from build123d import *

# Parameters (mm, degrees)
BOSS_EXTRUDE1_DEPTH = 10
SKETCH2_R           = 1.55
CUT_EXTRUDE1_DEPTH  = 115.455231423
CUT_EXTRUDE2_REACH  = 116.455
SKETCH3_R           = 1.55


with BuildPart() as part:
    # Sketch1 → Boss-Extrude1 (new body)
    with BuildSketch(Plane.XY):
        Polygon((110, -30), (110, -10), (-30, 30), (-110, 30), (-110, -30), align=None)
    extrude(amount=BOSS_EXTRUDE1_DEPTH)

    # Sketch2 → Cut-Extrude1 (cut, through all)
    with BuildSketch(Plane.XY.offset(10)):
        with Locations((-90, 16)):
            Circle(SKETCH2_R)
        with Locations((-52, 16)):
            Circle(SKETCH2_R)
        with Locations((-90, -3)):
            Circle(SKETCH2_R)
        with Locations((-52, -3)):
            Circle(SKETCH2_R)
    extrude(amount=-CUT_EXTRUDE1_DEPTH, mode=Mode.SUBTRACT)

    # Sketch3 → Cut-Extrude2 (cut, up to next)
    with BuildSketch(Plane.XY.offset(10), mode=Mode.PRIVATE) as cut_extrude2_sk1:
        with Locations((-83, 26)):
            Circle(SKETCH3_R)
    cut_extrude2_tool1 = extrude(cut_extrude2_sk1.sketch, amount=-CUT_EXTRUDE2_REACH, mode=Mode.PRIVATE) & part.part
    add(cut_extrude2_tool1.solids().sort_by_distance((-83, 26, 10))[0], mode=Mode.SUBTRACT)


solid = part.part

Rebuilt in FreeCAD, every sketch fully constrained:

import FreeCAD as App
import Part
import Sketcher
from FreeCAD import Vector


def add_polygon(sketch, points):
    """Adds a closed chain of lines whose ends are joined by coincident constraints."""
    first, n = sketch.GeometryCount, len(points)
    for a, b in zip(points, points[1:] + points[:1]):
        sketch.addGeometry(Part.LineSegment(App.Vector(*a, 0), App.Vector(*b, 0)), False)
    for i in range(n):
        sketch.addConstraint(Sketcher.Constraint("Coincident", first + i, 2, first + (i + 1) % n, 1))

doc = App.newDocument("Part")
body = doc.addObject("PartDesign::Body", "Body")

sketch1 = doc.addObject("Sketcher::SketchObject", "Sketch")
body.addObject(sketch1)
sketch1.AttachmentSupport = (doc.XY_Plane, [""])
sketch1.MapMode = "FlatFace"
add_polygon(sketch1, [(110, -30), (110, -10), (-30, 30), (-110, 30), (-110, -30)])
sketch1.addConstraint([
    Sketcher.Constraint("Vertical", 0),
    Sketcher.Constraint("Horizontal", 2),
    Sketcher.Constraint("Vertical", 3),
    Sketcher.Constraint("Horizontal", 4),
    Sketcher.Constraint("Symmetric", 2, 2, 4, 2, -1, 1),
    Sketcher.Constraint("DistanceX", 2, 2, 2, 1, 80.0),
    Sketcher.Constraint("DistanceX", 4, 1, 4, 2, 220.0),
    Sketcher.Constraint("DistanceY", 0, 1, 0, 2, 20.0),
    Sketcher.Constraint("DistanceY", 3, 2, 3, 1, 60.0),
])
pad1 = doc.addObject("PartDesign::Pad", "Pad")
body.addObject(pad1)
pad1.Profile = sketch1
pad1.Length = 10

sketch2 = doc.addObject("Sketcher::SketchObject", "Sketch001")
body.addObject(sketch2)
sketch2.AttachmentSupport = (doc.XY_Plane, [""])
sketch2.MapMode = "FlatFace"
sketch2.AttachmentOffset = App.Placement(Vector(0, 0, 10), App.Rotation())
sketch2.addGeometry([
    Part.Circle(Vector(-90, 16, 0), Vector(0, 0, 1), 1.55),
    Part.Circle(Vector(-52, 16, 0), Vector(0, 0, 1), 1.55),
    Part.Circle(Vector(-90, -3, 0), Vector(0, 0, 1), 1.55),
    Part.Circle(Vector(-52, -3, 0), Vector(0, 0, 1), 1.55),
], False)
sketch2.addConstraint([
    Sketcher.Constraint("Equal", 0, 1),
    Sketcher.Constraint("Equal", 1, 2),
    Sketcher.Constraint("Equal", 2, 3),
    Sketcher.Constraint("Horizontal", 0, 3, 1, 3),
    Sketcher.Constraint("Horizontal", 2, 3, 3, 3),
    Sketcher.Constraint("Vertical", 0, 3, 2, 3),
    Sketcher.Constraint("Vertical", 1, 3, 3, 3),
    Sketcher.Constraint("Diameter", 0, 3.1),
    Sketcher.Constraint("DistanceX", 0, 3, -1, 1, 90.0),
    Sketcher.Constraint("DistanceY", -1, 1, 0, 3, 16.0),
    Sketcher.Constraint("DistanceX", 1, 3, -1, 1, 52.0),
    Sketcher.Constraint("DistanceY", 2, 3, -1, 1, 3.0),
])
pocket1 = doc.addObject("PartDesign::Pocket", "Pocket")
body.addObject(pocket1)
pocket1.Profile = sketch2
pocket1.Type = "ThroughAll"

sketch3 = doc.addObject("Sketcher::SketchObject", "Sketch002")
body.addObject(sketch3)
sketch3.AttachmentSupport = (doc.XY_Plane, [""])
sketch3.MapMode = "FlatFace"
sketch3.AttachmentOffset = App.Placement(Vector(0, 0, 10), App.Rotation())
sketch3.addGeometry(Part.Circle(Vector(-83, 26, 0), Vector(0, 0, 1), 1.55), False)
sketch3.addConstraint([
    Sketcher.Constraint("Diameter", 0, 3.1),
    Sketcher.Constraint("DistanceX", 0, 3, -1, 1, 83.0),
    Sketcher.Constraint("DistanceY", -1, 1, 0, 3, 26.0),
])
pocket2 = doc.addObject("PartDesign::Pocket", "Pocket001")
body.addObject(pocket2)
pocket2.Profile = sketch3
pocket2.Type = "UpToFirst"

doc.recompute()
